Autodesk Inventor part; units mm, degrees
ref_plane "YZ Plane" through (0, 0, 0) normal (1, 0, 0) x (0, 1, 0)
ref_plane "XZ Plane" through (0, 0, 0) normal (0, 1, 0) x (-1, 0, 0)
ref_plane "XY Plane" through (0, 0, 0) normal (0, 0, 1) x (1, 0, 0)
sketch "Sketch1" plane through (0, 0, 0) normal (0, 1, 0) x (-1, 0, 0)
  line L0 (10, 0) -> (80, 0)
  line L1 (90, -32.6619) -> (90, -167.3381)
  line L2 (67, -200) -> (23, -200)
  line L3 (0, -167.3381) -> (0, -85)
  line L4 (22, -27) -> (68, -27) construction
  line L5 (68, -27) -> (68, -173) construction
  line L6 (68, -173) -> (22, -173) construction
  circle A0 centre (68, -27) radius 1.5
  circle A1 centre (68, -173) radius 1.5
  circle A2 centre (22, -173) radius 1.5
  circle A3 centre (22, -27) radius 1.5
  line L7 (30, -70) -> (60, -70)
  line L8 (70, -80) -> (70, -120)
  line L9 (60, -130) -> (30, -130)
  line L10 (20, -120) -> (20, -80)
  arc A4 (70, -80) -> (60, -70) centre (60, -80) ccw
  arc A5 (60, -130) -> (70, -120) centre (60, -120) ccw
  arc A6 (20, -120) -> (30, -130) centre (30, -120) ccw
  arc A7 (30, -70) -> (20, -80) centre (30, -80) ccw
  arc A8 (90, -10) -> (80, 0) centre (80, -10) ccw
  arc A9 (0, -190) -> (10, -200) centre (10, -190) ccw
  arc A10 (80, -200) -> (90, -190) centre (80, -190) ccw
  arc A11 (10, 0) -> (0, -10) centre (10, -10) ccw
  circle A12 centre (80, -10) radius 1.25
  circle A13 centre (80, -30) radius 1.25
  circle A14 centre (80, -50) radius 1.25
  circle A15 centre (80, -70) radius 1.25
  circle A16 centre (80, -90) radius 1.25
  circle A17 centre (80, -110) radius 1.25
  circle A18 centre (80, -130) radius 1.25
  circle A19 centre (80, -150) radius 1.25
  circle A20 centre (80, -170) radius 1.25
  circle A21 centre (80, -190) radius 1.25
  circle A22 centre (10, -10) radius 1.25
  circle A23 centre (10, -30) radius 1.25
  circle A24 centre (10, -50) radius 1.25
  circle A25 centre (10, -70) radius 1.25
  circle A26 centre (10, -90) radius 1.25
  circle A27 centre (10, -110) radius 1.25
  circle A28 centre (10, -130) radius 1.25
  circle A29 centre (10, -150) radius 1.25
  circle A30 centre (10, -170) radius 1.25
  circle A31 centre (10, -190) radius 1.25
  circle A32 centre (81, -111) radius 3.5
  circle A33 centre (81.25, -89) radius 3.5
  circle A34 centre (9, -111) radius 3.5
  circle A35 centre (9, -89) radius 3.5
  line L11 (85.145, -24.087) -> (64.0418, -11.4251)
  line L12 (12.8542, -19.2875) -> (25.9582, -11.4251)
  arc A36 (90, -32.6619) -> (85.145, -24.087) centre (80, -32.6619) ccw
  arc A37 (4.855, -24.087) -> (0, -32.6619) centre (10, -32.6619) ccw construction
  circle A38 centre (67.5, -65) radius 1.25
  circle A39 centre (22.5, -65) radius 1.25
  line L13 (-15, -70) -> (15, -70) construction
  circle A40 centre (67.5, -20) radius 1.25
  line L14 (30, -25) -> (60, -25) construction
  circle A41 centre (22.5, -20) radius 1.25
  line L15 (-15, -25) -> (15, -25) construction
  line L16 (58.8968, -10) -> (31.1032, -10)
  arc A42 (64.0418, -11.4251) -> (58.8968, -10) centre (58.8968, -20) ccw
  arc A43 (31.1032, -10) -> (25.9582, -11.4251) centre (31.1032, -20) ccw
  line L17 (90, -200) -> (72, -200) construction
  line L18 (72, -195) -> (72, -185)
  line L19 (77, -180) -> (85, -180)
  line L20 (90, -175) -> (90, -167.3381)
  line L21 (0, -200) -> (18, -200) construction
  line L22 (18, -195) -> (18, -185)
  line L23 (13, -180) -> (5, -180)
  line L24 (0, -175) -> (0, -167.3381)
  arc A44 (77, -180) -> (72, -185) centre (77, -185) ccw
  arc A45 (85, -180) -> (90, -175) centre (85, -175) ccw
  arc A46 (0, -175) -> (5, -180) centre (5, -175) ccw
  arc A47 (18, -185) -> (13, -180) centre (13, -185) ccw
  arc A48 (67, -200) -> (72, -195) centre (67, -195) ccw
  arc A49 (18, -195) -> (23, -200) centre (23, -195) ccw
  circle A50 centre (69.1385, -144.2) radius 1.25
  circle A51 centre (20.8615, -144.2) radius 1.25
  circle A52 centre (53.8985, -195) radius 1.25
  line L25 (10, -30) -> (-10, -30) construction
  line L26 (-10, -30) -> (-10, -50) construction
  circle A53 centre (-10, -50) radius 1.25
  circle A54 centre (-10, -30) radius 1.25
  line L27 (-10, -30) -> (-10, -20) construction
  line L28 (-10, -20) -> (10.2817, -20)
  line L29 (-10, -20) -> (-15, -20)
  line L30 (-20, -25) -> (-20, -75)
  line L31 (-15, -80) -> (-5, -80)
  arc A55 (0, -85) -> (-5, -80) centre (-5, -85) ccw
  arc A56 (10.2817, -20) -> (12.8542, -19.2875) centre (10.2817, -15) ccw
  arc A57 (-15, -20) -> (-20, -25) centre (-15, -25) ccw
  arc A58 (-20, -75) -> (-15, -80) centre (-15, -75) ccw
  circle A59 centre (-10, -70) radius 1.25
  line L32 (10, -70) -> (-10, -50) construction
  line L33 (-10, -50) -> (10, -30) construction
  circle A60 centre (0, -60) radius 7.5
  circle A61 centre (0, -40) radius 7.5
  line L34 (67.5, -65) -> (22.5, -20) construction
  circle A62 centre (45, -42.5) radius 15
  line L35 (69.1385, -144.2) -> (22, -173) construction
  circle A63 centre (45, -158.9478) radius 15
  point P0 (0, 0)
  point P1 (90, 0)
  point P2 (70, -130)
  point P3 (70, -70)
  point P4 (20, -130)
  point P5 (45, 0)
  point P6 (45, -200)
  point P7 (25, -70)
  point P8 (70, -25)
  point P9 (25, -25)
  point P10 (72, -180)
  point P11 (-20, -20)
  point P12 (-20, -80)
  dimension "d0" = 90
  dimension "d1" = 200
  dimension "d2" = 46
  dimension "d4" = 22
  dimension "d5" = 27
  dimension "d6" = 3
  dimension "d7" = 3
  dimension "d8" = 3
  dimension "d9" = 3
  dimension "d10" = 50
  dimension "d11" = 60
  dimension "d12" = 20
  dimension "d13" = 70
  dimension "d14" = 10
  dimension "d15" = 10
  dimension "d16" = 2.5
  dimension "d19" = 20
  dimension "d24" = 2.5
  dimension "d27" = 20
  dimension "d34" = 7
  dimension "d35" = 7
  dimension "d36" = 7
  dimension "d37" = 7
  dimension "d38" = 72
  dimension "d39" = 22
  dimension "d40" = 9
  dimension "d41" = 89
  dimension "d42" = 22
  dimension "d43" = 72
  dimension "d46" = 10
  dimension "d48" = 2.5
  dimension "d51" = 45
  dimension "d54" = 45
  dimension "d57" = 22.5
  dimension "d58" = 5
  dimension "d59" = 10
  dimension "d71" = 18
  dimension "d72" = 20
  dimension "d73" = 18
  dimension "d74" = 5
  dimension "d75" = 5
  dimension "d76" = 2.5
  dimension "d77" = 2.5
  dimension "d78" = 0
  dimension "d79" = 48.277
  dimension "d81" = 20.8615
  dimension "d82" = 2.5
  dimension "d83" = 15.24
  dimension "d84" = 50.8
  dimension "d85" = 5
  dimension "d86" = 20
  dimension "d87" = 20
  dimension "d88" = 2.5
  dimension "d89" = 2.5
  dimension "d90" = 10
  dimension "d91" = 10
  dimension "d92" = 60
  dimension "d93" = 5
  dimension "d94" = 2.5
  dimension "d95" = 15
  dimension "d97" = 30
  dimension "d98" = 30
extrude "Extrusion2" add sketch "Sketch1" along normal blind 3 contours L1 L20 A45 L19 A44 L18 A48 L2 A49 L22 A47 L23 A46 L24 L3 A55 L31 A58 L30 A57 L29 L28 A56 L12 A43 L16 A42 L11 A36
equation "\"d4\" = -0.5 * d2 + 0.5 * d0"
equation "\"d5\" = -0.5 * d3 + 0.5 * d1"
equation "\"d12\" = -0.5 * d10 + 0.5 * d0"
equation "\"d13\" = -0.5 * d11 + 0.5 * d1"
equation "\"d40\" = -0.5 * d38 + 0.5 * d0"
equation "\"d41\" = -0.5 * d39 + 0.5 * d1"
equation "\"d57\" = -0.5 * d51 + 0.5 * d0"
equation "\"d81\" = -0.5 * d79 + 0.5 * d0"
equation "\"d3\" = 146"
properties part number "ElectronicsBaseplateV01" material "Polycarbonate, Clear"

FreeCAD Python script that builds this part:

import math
import FreeCAD as App
import Part
import Sketcher
Q = App.Units.Quantity

doc = App.newDocument("Part")
body = doc.addObject("PartDesign::Body", "Body")

# Sketch on XZ plane
sketch1 = body.newObject("Sketcher::SketchObject", "Sketch")
sketch1.AttachmentSupport = (doc.getObject("XZ_Plane"), [""])
sketch1.MapMode = "FlatFace"
sketch1.addGeometry([
    Part.LineSegment(App.Vector(-90, -175, 0), App.Vector(-90, -32.6619, 0)),  # 0
    Part.ArcOfCircle(Part.Circle(App.Vector(-80, -32.6619, 0), App.Vector(0, 0, 1), 10), math.radians(120.964051), math.radians(180)),  # 1
    Part.LineSegment(App.Vector(-85.145, -24.087, 0), App.Vector(-64.0418, -11.4251, 0)),  # 2
    Part.ArcOfCircle(Part.Circle(App.Vector(-58.8968, -20, 0), App.Vector(0, 0, 1), 9.999997), math.radians(90), math.radians(120.964051)),  # 3
    Part.LineSegment(App.Vector(-58.8968, -10, 0), App.Vector(-31.1032, -10, 0)),  # 4
    Part.ArcOfCircle(Part.Circle(App.Vector(-31.1032, -20, 0), App.Vector(0, 0, 1), 10), math.radians(59.035949), math.radians(90)),  # 5
    Part.LineSegment(App.Vector(-25.9582, -11.4251, 0), App.Vector(-12.8542, -19.2875, 0)),  # 6
    Part.ArcOfCircle(Part.Circle(App.Vector(-10.2817, -15, 0), App.Vector(0, 0, 1), 5), math.radians(-120.963757), math.radians(-90)),  # 7
    Part.LineSegment(App.Vector(-10.2817, -20, 0), App.Vector(15, -20, 0)),  # 8
    Part.ArcOfCircle(Part.Circle(App.Vector(15, -25, 0), App.Vector(0, 0, 1), 5), math.radians(0), math.radians(90)),  # 9
    Part.LineSegment(App.Vector(20, -25, 0), App.Vector(20, -75, 0)),  # 10
    Part.ArcOfCircle(Part.Circle(App.Vector(15, -75, 0), App.Vector(0, 0, 1), 5), math.radians(-90), math.radians(0)),  # 11
    Part.LineSegment(App.Vector(15, -80, 0), App.Vector(5, -80, 0)),  # 12
    Part.ArcOfCircle(Part.Circle(App.Vector(5, -85, 0), App.Vector(0, 0, 1), 5), math.radians(90), math.radians(180)),  # 13
    Part.LineSegment(App.Vector(0, -85, 0), App.Vector(0, -175, 0)),  # 14
    Part.ArcOfCircle(Part.Circle(App.Vector(-5, -175, 0), App.Vector(0, 0, 1), 5), math.radians(-90), math.radians(0)),  # 15
    Part.LineSegment(App.Vector(-5, -180, 0), App.Vector(-13, -180, 0)),  # 16
    Part.ArcOfCircle(Part.Circle(App.Vector(-13, -185, 0), App.Vector(0, 0, 1), 5), math.radians(90), math.radians(180)),  # 17
    Part.LineSegment(App.Vector(-18, -185, 0), App.Vector(-18, -195, 0)),  # 18
    Part.ArcOfCircle(Part.Circle(App.Vector(-23, -195, 0), App.Vector(0, 0, 1), 5), math.radians(-90), math.radians(0)),  # 19
    Part.LineSegment(App.Vector(-23, -200, 0), App.Vector(-67, -200, 0)),  # 20
    Part.ArcOfCircle(Part.Circle(App.Vector(-67, -195, 0), App.Vector(0, 0, 1), 5), math.radians(180), math.radians(270)),  # 21
    Part.LineSegment(App.Vector(-72, -195, 0), App.Vector(-72, -185, 0)),  # 22
    Part.ArcOfCircle(Part.Circle(App.Vector(-77, -185, 0), App.Vector(0, 0, 1), 5), math.radians(0), math.radians(90)),  # 23
    Part.LineSegment(App.Vector(-77, -180, 0), App.Vector(-85, -180, 0)),  # 24
    Part.ArcOfCircle(Part.Circle(App.Vector(-85, -175, 0), App.Vector(0, 0, 1), 5), math.radians(180), math.radians(270)),  # 25
    Part.Circle(App.Vector(-10, -170, 0), App.Vector(0, 0, 1), 1.25),  # 26
    Part.Circle(App.Vector(-22, -173, 0), App.Vector(0, 0, 1), 1.5),  # 27
    Part.Circle(App.Vector(-10, -150, 0), App.Vector(0, 0, 1), 1.25),  # 28
    Part.Circle(App.Vector(-20.8615, -144.2, 0), App.Vector(0, 0, 1), 1.25),  # 29
    Part.Circle(App.Vector(-10, -130, 0), App.Vector(0, 0, 1), 1.25),  # 30
    Part.Circle(App.Vector(-9, -111, 0), App.Vector(0, 0, 1), 3.5),  # 31
    Part.Circle(App.Vector(-53.8985, -195, 0), App.Vector(0, 0, 1), 1.25),  # 32
    Part.Circle(App.Vector(-45, -158.9478, 0), App.Vector(0, 0, 1), 15),  # 33
    Part.Circle(App.Vector(-68, -173, 0), App.Vector(0, 0, 1), 1.5),  # 34
    Part.Circle(App.Vector(-80, -170, 0), App.Vector(0, 0, 1), 1.25),  # 35
    Part.Circle(App.Vector(-69.1385, -144.2, 0), App.Vector(0, 0, 1), 1.25),  # 36
    Part.Circle(App.Vector(-80, -150, 0), App.Vector(0, 0, 1), 1.25),  # 37
    Part.Circle(App.Vector(-80, -130, 0), App.Vector(0, 0, 1), 1.25),  # 38
    Part.Circle(App.Vector(-81, -111, 0), App.Vector(0, 0, 1), 3.5),  # 39
    Part.Circle(App.Vector(10, -70, 0), App.Vector(0, 0, 1), 1.25),  # 40
    Part.Circle(App.Vector(0, -60, 0), App.Vector(0, 0, 1), 7.5),  # 41
    Part.Circle(App.Vector(-9, -89, 0), App.Vector(0, 0, 1), 3.5),  # 42
    Part.Circle(App.Vector(-10, -70, 0), App.Vector(0, 0, 1), 1.25),  # 43
    Part.Circle(App.Vector(-22.5, -65, 0), App.Vector(0, 0, 1), 1.25),  # 44
    Part.Circle(App.Vector(10, -50, 0), App.Vector(0, 0, 1), 1.25),  # 45
    Part.Circle(App.Vector(0, -40, 0), App.Vector(0, 0, 1), 7.5),  # 46
    Part.Circle(App.Vector(10, -30, 0), App.Vector(0, 0, 1), 1.25),  # 47
    Part.Circle(App.Vector(-10, -50, 0), App.Vector(0, 0, 1), 1.25),  # 48
    Part.Circle(App.Vector(-10, -30, 0), App.Vector(0, 0, 1), 1.25),  # 49
    Part.Circle(App.Vector(-22, -27, 0), App.Vector(0, 0, 1), 1.5),  # 50
    Part.Circle(App.Vector(-22.5, -20, 0), App.Vector(0, 0, 1), 1.25),  # 51
    Part.ArcOfCircle(Part.Circle(App.Vector(-30, -80, 0), App.Vector(0, 0, 1), 10), math.radians(0), math.radians(90)),  # 52
    Part.LineSegment(App.Vector(-30, -70, 0), App.Vector(-60, -70, 0)),  # 53
    Part.ArcOfCircle(Part.Circle(App.Vector(-60, -80, 0), App.Vector(0, 0, 1), 10), math.radians(90), math.radians(180)),  # 54
    Part.LineSegment(App.Vector(-70, -80, 0), App.Vector(-70, -120, 0)),  # 55
    Part.ArcOfCircle(Part.Circle(App.Vector(-60, -120, 0), App.Vector(0, 0, 1), 10), math.radians(180), math.radians(270)),  # 56
    Part.LineSegment(App.Vector(-60, -130, 0), App.Vector(-30, -130, 0)),  # 57
    Part.ArcOfCircle(Part.Circle(App.Vector(-30, -120, 0), App.Vector(0, 0, 1), 10), math.radians(-90), math.radians(0)),  # 58
    Part.LineSegment(App.Vector(-20, -120, 0), App.Vector(-20, -80, 0)),  # 59
    Part.Circle(App.Vector(-81.25, -89, 0), App.Vector(0, 0, 1), 3.5),  # 60
    Part.Circle(App.Vector(-67.5, -65, 0), App.Vector(0, 0, 1), 1.25),  # 61
    Part.Circle(App.Vector(-80, -70, 0), App.Vector(0, 0, 1), 1.25),  # 62
    Part.Circle(App.Vector(-45, -42.5, 0), App.Vector(0, 0, 1), 15),  # 63
    Part.Circle(App.Vector(-80, -50, 0), App.Vector(0, 0, 1), 1.25),  # 64
    Part.Circle(App.Vector(-68, -27, 0), App.Vector(0, 0, 1), 1.5),  # 65
    Part.Circle(App.Vector(-67.5, -20, 0), App.Vector(0, 0, 1), 1.25),  # 66
    Part.Circle(App.Vector(-80, -30, 0), App.Vector(0, 0, 1), 1.25),  # 67
], False)
sketch1.addConstraint([
    Sketcher.Constraint("Tangent", 0, 2, 1, 2),
    Sketcher.Constraint("Tangent", 1, 1, 2, 1),
    Sketcher.Constraint("Tangent", 2, 2, 3, 2),
    Sketcher.Constraint("Tangent", 3, 1, 4, 1),
    Sketcher.Constraint("Tangent", 4, 2, 5, 2),
    Sketcher.Constraint("Tangent", 5, 1, 6, 1),
    Sketcher.Constraint("Tangent", 6, 2, 7, 1),
    Sketcher.Constraint("Tangent", 7, 2, 8, 1),
    Sketcher.Constraint("Tangent", 8, 2, 9, 2),
    Sketcher.Constraint("Tangent", 9, 1, 10, 1),
    Sketcher.Constraint("Tangent", 10, 2, 11, 2),
    Sketcher.Constraint("Tangent", 11, 1, 12, 1),
    Sketcher.Constraint("Tangent", 12, 2, 13, 1),
    Sketcher.Constraint("Tangent", 13, 2, 14, 1),
    Sketcher.Constraint("Tangent", 14, 2, 15, 2),
    Sketcher.Constraint("Tangent", 15, 1, 16, 1),
    Sketcher.Constraint("Tangent", 16, 2, 17, 1),
    Sketcher.Constraint("Tangent", 17, 2, 18, 1),
    Sketcher.Constraint("Tangent", 18, 2, 19, 2),
    Sketcher.Constraint("Tangent", 19, 1, 20, 1),
    Sketcher.Constraint("Tangent", 20, 2, 21, 2),
    Sketcher.Constraint("Tangent", 21, 1, 22, 1),
    Sketcher.Constraint("Tangent", 22, 2, 23, 1),
    Sketcher.Constraint("Tangent", 23, 2, 24, 1),
    Sketcher.Constraint("Tangent", 24, 2, 25, 2),
    Sketcher.Constraint("Tangent", 25, 1, 0, 1),
    Sketcher.Constraint("Tangent", 52, 2, 53, 1),
    Sketcher.Constraint("Tangent", 53, 2, 54, 1),
    Sketcher.Constraint("Tangent", 54, 2, 55, 1),
    Sketcher.Constraint("Tangent", 55, 2, 56, 1),
    Sketcher.Constraint("Tangent", 56, 2, 57, 1),
    Sketcher.Constraint("Tangent", 57, 2, 58, 1),
    Sketcher.Constraint("Tangent", 58, 2, 59, 1),
    Sketcher.Constraint("Tangent", 59, 2, 52, 1),
    Sketcher.Constraint("Vertical", 0),
    Sketcher.Constraint("Horizontal", 4),
    Sketcher.Constraint("Horizontal", 8),
    Sketcher.Constraint("Vertical", 10),
    Sketcher.Constraint("Horizontal", 12),
    Sketcher.Constraint("Vertical", 14),
    Sketcher.Constraint("Horizontal", 16),
    Sketcher.Constraint("Vertical", 18),
    Sketcher.Constraint("Horizontal", 20),
    Sketcher.Constraint("Vertical", 22),
    Sketcher.Constraint("Horizontal", 24),
    Sketcher.Constraint("Horizontal", 53),
    Sketcher.Constraint("Vertical", 55),
    Sketcher.Constraint("Horizontal", 57),
    Sketcher.Constraint("Vertical", 59),
    Sketcher.Constraint("Equal", 1, 3),
    Sketcher.Constraint("Equal", 3, 5),
    Sketcher.Constraint("Equal", 7, 9),
    Sketcher.Constraint("Equal", 9, 11),
    Sketcher.Constraint("Equal", 11, 13),
    Sketcher.Constraint("Equal", 13, 15),
    Sketcher.Constraint("Equal", 15, 17),
    Sketcher.Constraint("Equal", 17, 19),
    Sketcher.Constraint("Equal", 19, 21),
    Sketcher.Constraint("Equal", 21, 23),
    Sketcher.Constraint("Equal", 23, 25),
    Sketcher.Constraint("Equal", 26, 28),
    Sketcher.Constraint("Equal", 28, 29),
    Sketcher.Constraint("Equal", 29, 30),
    Sketcher.Constraint("Equal", 30, 32),
    Sketcher.Constraint("Equal", 27, 34),
    Sketcher.Constraint("Equal", 32, 35),
    Sketcher.Constraint("Equal", 35, 36),
    Sketcher.Constraint("Equal", 36, 37),
    Sketcher.Constraint("Equal", 37, 38),
    Sketcher.Constraint("Equal", 31, 39),
    Sketcher.Constraint("Equal", 38, 40),
    Sketcher.Constraint("Equal", 39, 42),
    Sketcher.Constraint("Equal", 40, 43),
    Sketcher.Constraint("Equal", 43, 44),
    Sketcher.Constraint("Equal", 44, 45),
    Sketcher.Constraint("Equal", 41, 46),
    Sketcher.Constraint("Equal", 45, 47),
    Sketcher.Constraint("Equal", 47, 48),
    Sketcher.Constraint("Equal", 48, 49),
    Sketcher.Constraint("Equal", 34, 50),
    Sketcher.Constraint("Equal", 49, 51),
    Sketcher.Constraint("Equal", 5, 52),
    Sketcher.Constraint("Equal", 52, 54),
    Sketcher.Constraint("Equal", 54, 56),
    Sketcher.Constraint("Equal", 56, 58),
    Sketcher.Constraint("Equal", 42, 60),
    Sketcher.Constraint("Equal", 51, 61),
    Sketcher.Constraint("Equal", 61, 62),
    Sketcher.Constraint("Equal", 33, 63),
    Sketcher.Constraint("Equal", 62, 64),
    Sketcher.Constraint("Equal", 50, 65),
    Sketcher.Constraint("Equal", 64, 66),
    Sketcher.Constraint("Equal", 66, 67),
    Sketcher.Constraint("Symmetric", 40, 3, 43, 3, -2),
    Sketcher.Constraint("Symmetric", 45, 3, 48, 3, -2),
    Sketcher.Constraint("Symmetric", 47, 3, 49, 3, -2),
    Sketcher.Constraint("PointOnObject", 41, 3, -2),
    Sketcher.Constraint("PointOnObject", 46, 3, -2),
    Sketcher.Constraint("PointOnObject", 13, 2, -2),
    Sketcher.Constraint("Horizontal", 17, 3, 23, 3),
    Sketcher.Constraint("Horizontal", 21, 3, 32, 3),
    Sketcher.Constraint("Horizontal", 27, 3, 34, 3),
    Sketcher.Constraint("Horizontal", 26, 3, 35, 3),
    Sketcher.Constraint("Horizontal", 29, 3, 36, 3),
    Sketcher.Constraint("Horizontal", 28, 3, 37, 3),
    Sketcher.Constraint("Horizontal", 30, 3, 38, 3),
    Sketcher.Constraint("Horizontal", 31, 3, 39, 3),
    Sketcher.Constraint("Horizontal", 5, 3, 51, 3),
    Sketcher.Constraint("Horizontal", 42, 3, 60, 3),
    Sketcher.Constraint("Horizontal", 44, 3, 61, 3),
    Sketcher.Constraint("Horizontal", 43, 3, 62, 3),
    Sketcher.Constraint("Horizontal", 48, 3, 64, 3),
    Sketcher.Constraint("Horizontal", 50, 3, 65, 3),
    Sketcher.Constraint("Horizontal", 51, 3, 66, 3),
    Sketcher.Constraint("Horizontal", 49, 3, 67, 3),
    Sketcher.Constraint("Horizontal", 2, 2, 5, 1),
    Sketcher.Constraint("Horizontal", 66, 3, 7, 2),
    Sketcher.Constraint("Horizontal", 54, 3, 11, 1),
    Sketcher.Constraint("Horizontal", 62, 3, 52, 2),
    Sketcher.Constraint("Horizontal", 38, 3, 56, 2),
    Sketcher.Constraint("Vertical", 26, 3, 28, 3),
    Sketcher.Constraint("Vertical", 28, 3, 30, 3),
    Sketcher.Constraint("Vertical", 1, 3, 35, 3),
    Sketcher.Constraint("Vertical", 35, 3, 37, 3),
    Sketcher.Constraint("Vertical", 37, 3, 38, 3),
    Sketcher.Constraint("Vertical", 31, 3, 42, 3),
    Sketcher.Constraint("Vertical", 30, 3, 43, 3),
    Sketcher.Constraint("Vertical", 40, 3, 45, 3),
    Sketcher.Constraint("Vertical", 45, 3, 47, 3),
    Sketcher.Constraint("Vertical", 27, 3, 50, 3),
    Sketcher.Constraint("Vertical", 44, 3, 51, 3),
    Sketcher.Constraint("Vertical", 38, 3, 62, 3),
    Sketcher.Constraint("Vertical", 33, 3, 63, 3),
    Sketcher.Constraint("Vertical", 62, 3, 64, 3),
    Sketcher.Constraint("Vertical", 34, 3, 65, 3),
    Sketcher.Constraint("Vertical", 61, 3, 66, 3),
    Sketcher.Constraint("Vertical", 64, 3, 67, 3),
    Sketcher.Constraint("Equal", 16, 24),
    Sketcher.Constraint("Equal", 12, 18),
    Sketcher.Constraint("Diameter", 27, Q("3 mm")),
    Sketcher.Constraint("Diameter", 31, Q("7 mm")),
    Sketcher.Constraint("Diameter", 33, Q("30 mm")),
    Sketcher.Constraint("Diameter", 41, Q("15 mm")),
    Sketcher.Constraint("Radius", 1, Q("10 mm")),
    Sketcher.Constraint("Radius", 7, Q("5 mm")),
    Sketcher.Constraint("Diameter", 26, Q("2.5 mm")),
    Sketcher.Constraint("DistanceX", 12, 2, 12, 1, Q("10 mm")),
    Sketcher.Constraint("DistanceX", 53, 2, 53, 1, Q("30 mm")),
    Sketcher.Constraint("DistanceY", 10, 2, 10, 1, Q("50 mm")),
    Sketcher.Constraint("DistanceY", 14, 2, 14, 1, Q("90 mm")),
    Sketcher.Constraint("DistanceY", 3, 3, -1, 1, Q("20 mm")),
    Sketcher.Constraint("DistanceX", 26, 3, -1, 1, Q("10 mm")),
    Sketcher.Constraint("DistanceX", 27, 3, -1, 1, Q("22 mm")),
    Sketcher.Constraint("DistanceX", 31, 3, -1, 1, Q("9 mm")),
    Sketcher.Constraint("DistanceX", 33, 3, -1, 1, Q("45 mm")),
    Sketcher.Constraint("DistanceY", 41, 3, -1, 1, Q("60 mm")),
    Sketcher.Constraint("DistanceY", 42, 3, -1, 1, Q("89 mm")),
    Sketcher.Constraint("DistanceY", 45, 3, -1, 1, Q("50 mm")),
    Sketcher.Constraint("DistanceY", 47, 3, -1, 1, Q("30 mm")),
    Sketcher.Constraint("DistanceY", 50, 3, -1, 1, Q("27 mm")),
    Sketcher.Constraint("DistanceX", 52, 3, -1, 1, Q("30 mm")),
    Sketcher.Constraint("DistanceX", 0, 2, -1, 1, Q("90 mm")),
    Sketcher.Constraint("DistanceX", 17, 2, -1, 1, Q("18 mm")),
    Sketcher.Constraint("DistanceX", 44, 3, -1, 1, Q("22.5 mm")),
    Sketcher.Constraint("DistanceY", 55, 2, 55, 1, Q("40 mm")),
    Sketcher.Constraint("DistanceY", 26, 3, -1, 1, Q("170 mm")),
    Sketcher.Constraint("DistanceY", 27, 3, -1, 1, Q("173 mm")),
    Sketcher.Constraint("DistanceY", 28, 3, -1, 1, Q("150 mm")),
    Sketcher.Constraint("DistanceY", 31, 3, -1, 1, Q("111 mm")),
    Sketcher.Constraint("DistanceX", 34, 3, -1, 1, Q("68 mm")),
    Sketcher.Constraint("DistanceX", 39, 3, -1, 1, Q("81 mm")),
    Sketcher.Constraint("DistanceY", 44, 3, -1, 1, Q("65 mm")),
    Sketcher.Constraint("DistanceY", 46, 3, -1, 1, Q("40 mm")),
    Sketcher.Constraint("DistanceX", 29, 3, -1, 1, Q("20.8615 mm")),
    Sketcher.Constraint("DistanceY", 29, 3, -1, 1, Q("144.2 mm")),
    Sketcher.Constraint("DistanceX", 61, 3, -1, 1, Q("67.5 mm")),
    Sketcher.Constraint("DistanceY", 63, 3, -1, 1, Q("42.5 mm")),
    Sketcher.Constraint("DistanceY", 0, 1, 0, 2, Q("142.338 mm")),
    Sketcher.Constraint("DistanceX", 60, 3, -1, 1, Q("81.25 mm")),
    Sketcher.Constraint("DistanceX", 4, 1, 4, 2, Q("27.7936 mm")),
    Sketcher.Constraint("DistanceX", 8, 1, 8, 2, Q("25.2817 mm")),
    Sketcher.Constraint("DistanceX", 32, 3, -1, 1, Q("53.8985 mm")),
    Sketcher.Constraint("DistanceY", 33, 3, -1, 1, Q("158.9478 mm")),
    Sketcher.Constraint("DistanceX", 36, 3, -1, 1, Q("69.1385 mm")),
])
pad1 = body.newObject("PartDesign::Pad", "Pad")
pad1.Profile = sketch1
pad1.Length = 3
pad1.Reversed = True

doc.recompute()
